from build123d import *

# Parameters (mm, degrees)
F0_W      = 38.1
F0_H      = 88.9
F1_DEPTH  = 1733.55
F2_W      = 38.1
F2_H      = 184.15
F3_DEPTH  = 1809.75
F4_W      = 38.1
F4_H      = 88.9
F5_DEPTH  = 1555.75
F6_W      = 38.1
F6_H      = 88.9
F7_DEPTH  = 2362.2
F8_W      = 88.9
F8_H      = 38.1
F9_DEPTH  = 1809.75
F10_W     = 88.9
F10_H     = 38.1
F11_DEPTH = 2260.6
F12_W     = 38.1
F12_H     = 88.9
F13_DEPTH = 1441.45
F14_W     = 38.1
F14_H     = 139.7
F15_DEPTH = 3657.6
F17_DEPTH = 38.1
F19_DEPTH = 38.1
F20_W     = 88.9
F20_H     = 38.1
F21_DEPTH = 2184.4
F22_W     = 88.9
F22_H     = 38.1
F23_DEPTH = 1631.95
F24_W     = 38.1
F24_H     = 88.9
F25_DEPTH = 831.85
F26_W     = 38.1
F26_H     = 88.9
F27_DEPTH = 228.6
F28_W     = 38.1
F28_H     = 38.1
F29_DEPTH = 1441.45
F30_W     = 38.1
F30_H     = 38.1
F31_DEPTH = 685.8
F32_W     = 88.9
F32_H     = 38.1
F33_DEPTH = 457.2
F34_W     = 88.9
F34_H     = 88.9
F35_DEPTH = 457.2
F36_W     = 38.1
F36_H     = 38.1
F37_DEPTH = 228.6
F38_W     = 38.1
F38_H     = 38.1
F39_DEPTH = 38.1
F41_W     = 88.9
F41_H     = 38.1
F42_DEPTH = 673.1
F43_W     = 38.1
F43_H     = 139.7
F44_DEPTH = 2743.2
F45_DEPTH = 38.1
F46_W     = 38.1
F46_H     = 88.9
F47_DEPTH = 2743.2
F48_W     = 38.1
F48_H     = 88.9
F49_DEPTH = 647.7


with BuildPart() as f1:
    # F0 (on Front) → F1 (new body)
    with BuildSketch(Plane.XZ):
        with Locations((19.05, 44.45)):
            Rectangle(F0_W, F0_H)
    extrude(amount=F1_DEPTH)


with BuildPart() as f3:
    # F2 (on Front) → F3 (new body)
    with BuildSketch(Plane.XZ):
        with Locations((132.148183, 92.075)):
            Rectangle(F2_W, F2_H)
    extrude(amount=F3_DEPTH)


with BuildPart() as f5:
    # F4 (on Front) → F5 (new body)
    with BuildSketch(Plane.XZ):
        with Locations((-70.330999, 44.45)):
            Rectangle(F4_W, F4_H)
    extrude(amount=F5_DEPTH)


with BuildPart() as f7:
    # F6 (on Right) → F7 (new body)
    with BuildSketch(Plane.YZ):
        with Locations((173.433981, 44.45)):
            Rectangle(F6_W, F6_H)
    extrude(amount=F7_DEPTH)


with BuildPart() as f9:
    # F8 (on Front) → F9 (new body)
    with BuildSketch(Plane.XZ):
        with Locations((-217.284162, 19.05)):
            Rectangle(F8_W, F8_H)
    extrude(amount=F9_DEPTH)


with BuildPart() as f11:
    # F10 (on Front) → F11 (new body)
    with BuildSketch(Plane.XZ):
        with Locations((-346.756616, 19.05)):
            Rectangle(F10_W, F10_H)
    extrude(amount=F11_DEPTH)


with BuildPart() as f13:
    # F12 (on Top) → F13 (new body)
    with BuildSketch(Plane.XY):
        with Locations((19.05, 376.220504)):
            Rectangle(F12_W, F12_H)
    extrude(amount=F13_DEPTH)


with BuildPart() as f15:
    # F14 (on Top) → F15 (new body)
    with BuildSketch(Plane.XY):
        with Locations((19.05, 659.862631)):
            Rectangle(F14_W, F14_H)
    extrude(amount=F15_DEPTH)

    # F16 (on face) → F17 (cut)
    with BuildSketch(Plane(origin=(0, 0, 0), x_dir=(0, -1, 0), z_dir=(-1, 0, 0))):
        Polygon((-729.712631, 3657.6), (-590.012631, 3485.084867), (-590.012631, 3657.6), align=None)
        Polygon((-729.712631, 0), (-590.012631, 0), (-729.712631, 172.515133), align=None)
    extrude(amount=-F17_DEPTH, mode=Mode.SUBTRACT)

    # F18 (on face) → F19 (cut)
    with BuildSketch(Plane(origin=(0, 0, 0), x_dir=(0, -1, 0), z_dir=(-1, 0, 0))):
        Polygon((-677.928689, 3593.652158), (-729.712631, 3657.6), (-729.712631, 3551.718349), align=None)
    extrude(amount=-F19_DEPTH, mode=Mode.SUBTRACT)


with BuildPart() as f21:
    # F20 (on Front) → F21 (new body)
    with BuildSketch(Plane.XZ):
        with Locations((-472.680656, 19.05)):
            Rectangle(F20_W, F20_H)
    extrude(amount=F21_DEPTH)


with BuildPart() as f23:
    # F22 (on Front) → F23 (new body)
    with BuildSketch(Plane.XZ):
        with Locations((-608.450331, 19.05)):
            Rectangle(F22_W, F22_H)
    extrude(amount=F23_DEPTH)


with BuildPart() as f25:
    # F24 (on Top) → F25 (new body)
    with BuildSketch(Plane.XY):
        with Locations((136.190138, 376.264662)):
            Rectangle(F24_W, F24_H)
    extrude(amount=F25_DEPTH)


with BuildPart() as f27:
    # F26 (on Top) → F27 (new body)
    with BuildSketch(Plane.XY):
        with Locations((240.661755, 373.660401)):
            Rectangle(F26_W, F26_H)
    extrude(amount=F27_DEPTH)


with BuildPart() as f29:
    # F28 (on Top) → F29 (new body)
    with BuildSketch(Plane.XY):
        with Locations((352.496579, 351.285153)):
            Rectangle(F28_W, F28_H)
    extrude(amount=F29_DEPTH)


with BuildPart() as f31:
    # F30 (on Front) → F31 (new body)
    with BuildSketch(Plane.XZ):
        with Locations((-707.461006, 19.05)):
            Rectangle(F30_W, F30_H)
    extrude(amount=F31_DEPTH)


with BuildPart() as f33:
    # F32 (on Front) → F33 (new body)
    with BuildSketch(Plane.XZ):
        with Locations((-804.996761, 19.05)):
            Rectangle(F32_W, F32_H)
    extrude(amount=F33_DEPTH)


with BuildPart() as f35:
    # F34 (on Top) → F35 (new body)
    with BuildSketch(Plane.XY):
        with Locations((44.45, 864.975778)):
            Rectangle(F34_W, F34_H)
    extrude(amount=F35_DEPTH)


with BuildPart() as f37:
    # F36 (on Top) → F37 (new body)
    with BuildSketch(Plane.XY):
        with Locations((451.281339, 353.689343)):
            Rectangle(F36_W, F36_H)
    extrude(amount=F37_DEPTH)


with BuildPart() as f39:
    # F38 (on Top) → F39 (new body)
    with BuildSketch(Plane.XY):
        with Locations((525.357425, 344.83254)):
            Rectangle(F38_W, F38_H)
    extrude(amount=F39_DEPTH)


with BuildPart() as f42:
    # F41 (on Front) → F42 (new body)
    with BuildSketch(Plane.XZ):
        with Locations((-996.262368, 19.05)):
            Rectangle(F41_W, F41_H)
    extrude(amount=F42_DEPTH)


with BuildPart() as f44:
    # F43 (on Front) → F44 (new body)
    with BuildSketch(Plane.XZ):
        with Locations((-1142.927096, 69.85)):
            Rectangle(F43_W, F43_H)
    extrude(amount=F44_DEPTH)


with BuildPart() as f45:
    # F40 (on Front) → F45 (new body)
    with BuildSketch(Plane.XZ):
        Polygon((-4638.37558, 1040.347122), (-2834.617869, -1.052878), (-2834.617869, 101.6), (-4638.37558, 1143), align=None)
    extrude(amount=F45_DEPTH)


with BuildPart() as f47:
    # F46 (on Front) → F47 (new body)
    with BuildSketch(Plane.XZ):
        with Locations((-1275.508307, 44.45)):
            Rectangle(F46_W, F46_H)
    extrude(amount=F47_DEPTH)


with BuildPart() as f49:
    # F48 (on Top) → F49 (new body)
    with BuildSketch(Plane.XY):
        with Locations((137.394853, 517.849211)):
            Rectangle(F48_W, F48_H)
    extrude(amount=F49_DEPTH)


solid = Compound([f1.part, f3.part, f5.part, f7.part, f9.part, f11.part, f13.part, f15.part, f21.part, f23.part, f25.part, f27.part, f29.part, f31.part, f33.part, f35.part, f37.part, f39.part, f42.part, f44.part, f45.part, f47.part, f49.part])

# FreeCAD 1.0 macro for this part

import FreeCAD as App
import Part
import Sketcher
from FreeCAD import Vector
Q = App.Units.Quantity

doc = App.newDocument("Part")
body = doc.addObject("PartDesign::Body", "Body")

sketch1 = body.newObject("Sketcher::SketchObject", "Sketch")
sketch1.AttachmentSupport = (doc.getObject("XZ_Plane"), [""])
sketch1.MapMode = "FlatFace"
sketch1.addGeometry([
    Part.LineSegment(Vector(0, 88.9, 0), Vector(0, 0, 0)),
    Part.LineSegment(Vector(0, 0, 0), Vector(38.1, 0, 0)),
    Part.LineSegment(Vector(38.1, 0, 0), Vector(38.1, 88.9, 0)),
    Part.LineSegment(Vector(38.1, 88.9, 0), Vector(0, 88.9, 0)),
], False)
sketch1.addConstraint([
    Sketcher.Constraint("Coincident", 0, 2, 1, 1),
    Sketcher.Constraint("Coincident", 1, 2, 2, 1),
    Sketcher.Constraint("Coincident", 2, 2, 3, 1),
    Sketcher.Constraint("Coincident", 3, 2, 0, 1),
    Sketcher.Constraint("Vertical", 0),
    Sketcher.Constraint("Horizontal", 1),
    Sketcher.Constraint("Vertical", 2),
    Sketcher.Constraint("Horizontal", 3),
    Sketcher.Constraint("Coincident", 0, 2, -1, 1),
    Sketcher.Constraint("DistanceX", 1, 1, 1, 2, Q("1.5 in")),
    Sketcher.Constraint("DistanceY", 0, 2, 0, 1, Q("3.5 in")),
])
pad1 = body.newObject("PartDesign::Pad", "Pad")
pad1.Profile = sketch1
pad1.Length = Q("68.25 in")
body2 = doc.addObject("PartDesign::Body", "Body001")

sketch2 = body2.newObject("Sketcher::SketchObject", "Sketch001")
sketch2.AttachmentSupport = (doc.getObject("XZ_Plane001"), [""])
sketch2.MapMode = "FlatFace"
sketch2.addGeometry([
    Part.LineSegment(Vector(113.098183, 184.15, 0), Vector(113.098183, 0, 0)),
    Part.LineSegment(Vector(113.098183, 0, 0), Vector(151.198183, 0, 0)),
    Part.LineSegment(Vector(151.198183, 0, 0), Vector(151.198183, 184.15, 0)),
    Part.LineSegment(Vector(151.198183, 184.15, 0), Vector(113.098183, 184.15, 0)),
], False)
sketch2.addConstraint([
    Sketcher.Constraint("Coincident", 0, 2, 1, 1),
    Sketcher.Constraint("Coincident", 1, 2, 2, 1),
    Sketcher.Constraint("Coincident", 2, 2, 3, 1),
    Sketcher.Constraint("Coincident", 3, 2, 0, 1),
    Sketcher.Constraint("Vertical", 0),
    Sketcher.Constraint("Horizontal", 1),
    Sketcher.Constraint("Vertical", 2),
    Sketcher.Constraint("Horizontal", 3),
    Sketcher.Constraint("PointOnObject", 0, 2, -1),
    Sketcher.Constraint("DistanceX", 1, 1, 1, 2, Q("1.5 in")),
    Sketcher.Constraint("DistanceY", 0, 2, 0, 1, Q("7.25 in")),
    Sketcher.Constraint("DistanceX", -1, 1, 0, 2, Q("113.098183 mm")),
])
pad2 = body2.newObject("PartDesign::Pad", "Pad001")
pad2.Profile = sketch2
pad2.Length = Q("71.25 in")
body3 = doc.addObject("PartDesign::Body", "Body002")

sketch3 = body3.newObject("Sketcher::SketchObject", "Sketch002")
sketch3.AttachmentSupport = (doc.getObject("XZ_Plane002"), [""])
sketch3.MapMode = "FlatFace"
sketch3.addGeometry([
    Part.LineSegment(Vector(-89.380999, 88.9, 0), Vector(-89.380999, 0, 0)),
    Part.LineSegment(Vector(-89.380999, 0, 0), Vector(-51.280999, 0, 0)),
    Part.LineSegment(Vector(-51.280999, 0, 0), Vector(-51.280999, 88.9, 0)),
    Part.LineSegment(Vector(-51.280999, 88.9, 0), Vector(-89.380999, 88.9, 0)),
], False)
sketch3.addConstraint([
    Sketcher.Constraint("Coincident", 0, 2, 1, 1),
    Sketcher.Constraint("Coincident", 1, 2, 2, 1),
    Sketcher.Constraint("Coincident", 2, 2, 3, 1),
    Sketcher.Constraint("Coincident", 3, 2, 0, 1),
    Sketcher.Constraint("Vertical", 0),
    Sketcher.Constraint("Horizontal", 1),
    Sketcher.Constraint("Vertical", 2),
    Sketcher.Constraint("Horizontal", 3),
    Sketcher.Constraint("PointOnObject", 0, 2, -1),
    Sketcher.Constraint("DistanceX", 1, 1, 1, 2, Q("1.5 in")),
    Sketcher.Constraint("DistanceY", 0, 2, 0, 1, Q("3.5 in")),
    Sketcher.Constraint("DistanceX", 0, 2, -1, 1, Q("89.380999 mm")),
])
pad3 = body3.newObject("PartDesign::Pad", "Pad002")
pad3.Profile = sketch3
pad3.Length = Q("61.25 in")
body4 = doc.addObject("PartDesign::Body", "Body003")

sketch4 = body4.newObject("Sketcher::SketchObject", "Sketch003")
sketch4.AttachmentSupport = (doc.getObject("YZ_Plane003"), [""])
sketch4.MapMode = "FlatFace"
sketch4.addGeometry([
    Part.LineSegment(Vector(154.383981, 88.9, 0), Vector(154.383981, 0, 0)),
    Part.LineSegment(Vector(154.383981, 0, 0), Vector(192.483981, 0, 0)),
    Part.LineSegment(Vector(192.483981, 0, 0), Vector(192.483981, 88.9, 0)),
    Part.LineSegment(Vector(192.483981, 88.9, 0), Vector(154.383981, 88.9, 0)),
], False)
sketch4.addConstraint([
    Sketcher.Constraint("Coincident", 0, 2, 1, 1),
    Sketcher.Constraint("Coincident", 1, 2, 2, 1),
    Sketcher.Constraint("Coincident", 2, 2, 3, 1),
    Sketcher.Constraint("Coincident", 3, 2, 0, 1),
    Sketcher.Constraint("Vertical", 0),
    Sketcher.Constraint("Horizontal", 1),
    Sketcher.Constraint("Vertical", 2),
    Sketcher.Constraint("Horizontal", 3),
    Sketcher.Constraint("PointOnObject", 0, 2, -1),
    Sketcher.Constraint("DistanceX", 1, 1, 1, 2, Q("1.5 in")),
    Sketcher.Constraint("DistanceY", 0, 2, 0, 1, Q("3.5 in")),
    Sketcher.Constraint("DistanceX", -1, 1, 0, 2, Q("154.383981 mm")),
])
pad4 = body4.newObject("PartDesign::Pad", "Pad003")
pad4.Profile = sketch4
pad4.Length = Q("93 in")
body5 = doc.addObject("PartDesign::Body", "Body004")

sketch5 = body5.newObject("Sketcher::SketchObject", "Sketch004")
sketch5.AttachmentSupport = (doc.getObject("XZ_Plane004"), [""])
sketch5.MapMode = "FlatFace"
sketch5.addGeometry([
    Part.LineSegment(Vector(-261.734162, 38.1, 0), Vector(-261.734162, 0, 0)),
    Part.LineSegment(Vector(-261.734162, 0, 0), Vector(-172.834162, 0, 0)),
    Part.LineSegment(Vector(-172.834162, 0, 0), Vector(-172.834162, 38.1, 0)),
    Part.LineSegment(Vector(-172.834162, 38.1, 0), Vector(-261.734162, 38.1, 0)),
], False)
sketch5.addConstraint([
    Sketcher.Constraint("Coincident", 0, 2, 1, 1),
    Sketcher.Constraint("Coincident", 1, 2, 2, 1),
    Sketcher.Constraint("Coincident", 2, 2, 3, 1),
    Sketcher.Constraint("Coincident", 3, 2, 0, 1),
    Sketcher.Constraint("Vertical", 0),
    Sketcher.Constraint("Horizontal", 1),
    Sketcher.Constraint("Vertical", 2),
    Sketcher.Constraint("Horizontal", 3),
    Sketcher.Constraint("PointOnObject", 0, 2, -1),
    Sketcher.Constraint("DistanceX", 1, 1, 1, 2, Q("3.5 in")),
    Sketcher.Constraint("DistanceY", 0, 2, 0, 1, Q("1.5 in")),
    Sketcher.Constraint("DistanceX", 1, 2, -1, 1, Q("172.834162 mm")),
])
pad5 = body5.newObject("PartDesign::Pad", "Pad004")
pad5.Profile = sketch5
pad5.Length = Q("71.25 in")
body6 = doc.addObject("PartDesign::Body", "Body005")

sketch6 = body6.newObject("Sketcher::SketchObject", "Sketch005")
sketch6.AttachmentSupport = (doc.getObject("XZ_Plane005"), [""])
sketch6.MapMode = "FlatFace"
sketch6.addGeometry([
    Part.LineSegment(Vector(-391.206616, 38.1, 0), Vector(-391.206616, 0, 0)),
    Part.LineSegment(Vector(-391.206616, 0, 0), Vector(-302.306616, 0, 0)),
    Part.LineSegment(Vector(-302.306616, 0, 0), Vector(-302.306616, 38.1, 0)),
    Part.LineSegment(Vector(-302.306616, 38.1, 0), Vector(-391.206616, 38.1, 0)),
], False)
sketch6.addConstraint([
    Sketcher.Constraint("Coincident", 0, 2, 1, 1),
    Sketcher.Constraint("Coincident", 1, 2, 2, 1),
    Sketcher.Constraint("Coincident", 2, 2, 3, 1),
    Sketcher.Constraint("Coincident", 3, 2, 0, 1),
    Sketcher.Constraint("Vertical", 0),
    Sketcher.Constraint("Horizontal", 1),
    Sketcher.Constraint("Vertical", 2),
    Sketcher.Constraint("Horizontal", 3),
    Sketcher.Constraint("PointOnObject", 0, 2, -1),
    Sketcher.Constraint("DistanceX", 1, 1, 1, 2, Q("3.5 in")),
    Sketcher.Constraint("DistanceY", 0, 2, 0, 1, Q("1.5 in")),
    Sketcher.Constraint("DistanceX", 0, 2, -1, 1, Q("391.206616 mm")),
])
pad6 = body6.newObject("PartDesign::Pad", "Pad005")
pad6.Profile = sketch6
pad6.Length = Q("89 in")
body7 = doc.addObject("PartDesign::Body", "Body006")

sketch7 = body7.newObject("Sketcher::SketchObject", "Sketch006")
sketch7.AttachmentSupport = (doc.getObject("XY_Plane006"), [""])
sketch7.MapMode = "FlatFace"
sketch7.addGeometry([
    Part.LineSegment(Vector(0, 420.670504, 0), Vector(0, 331.770504, 0)),
    Part.LineSegment(Vector(0, 331.770504, 0), Vector(38.1, 331.770504, 0)),
    Part.LineSegment(Vector(38.1, 331.770504, 0), Vector(38.1, 420.670504, 0)),
    Part.LineSegment(Vector(38.1, 420.670504, 0), Vector(0, 420.670504, 0)),
], False)
sketch7.addConstraint([
    Sketcher.Constraint("Coincident", 0, 2, 1, 1),
    Sketcher.Constraint("Coincident", 1, 2, 2, 1),
    Sketcher.Constraint("Coincident", 2, 2, 3, 1),
    Sketcher.Constraint("Coincident", 3, 2, 0, 1),
    Sketcher.Constraint("Vertical", 0),
    Sketcher.Constraint("Horizontal", 1),
    Sketcher.Constraint("Vertical", 2),
    Sketcher.Constraint("Horizontal", 3),
    Sketcher.Constraint("PointOnObject", 0, 2, -2),
    Sketcher.Constraint("DistanceX", 1, 1, 1, 2, Q("1.5 in")),
    Sketcher.Constraint("DistanceY", 0, 2, 0, 1, Q("3.5 in")),
    Sketcher.Constraint("DistanceY", -1, 1, 0, 2, Q("331.770504 mm")),
])
pad7 = body7.newObject("PartDesign::Pad", "Pad006")
pad7.Profile = sketch7
pad7.Length = Q("56.75 in")
body8 = doc.addObject("PartDesign::Body", "Body007")

sketch8 = body8.newObject("Sketcher::SketchObject", "Sketch007")
sketch8.AttachmentSupport = (doc.getObject("XY_Plane007"), [""])
sketch8.MapMode = "FlatFace"
sketch8.addGeometry([
    Part.LineSegment(Vector(0, 729.712631, 0), Vector(0, 590.012631, 0)),
    Part.LineSegment(Vector(0, 590.012631, 0), Vector(38.1, 590.012631, 0)),
    Part.LineSegment(Vector(38.1, 590.012631, 0), Vector(38.1, 729.712631, 0)),
    Part.LineSegment(Vector(38.1, 729.712631, 0), Vector(0, 729.712631, 0)),
], False)
sketch8.addConstraint([
    Sketcher.Constraint("Coincident", 0, 2, 1, 1),
    Sketcher.Constraint("Coincident", 1, 2, 2, 1),
    Sketcher.Constraint("Coincident", 2, 2, 3, 1),
    Sketcher.Constraint("Coincident", 3, 2, 0, 1),
    Sketcher.Constraint("Vertical", 0),
    Sketcher.Constraint("Horizontal", 1),
    Sketcher.Constraint("Vertical", 2),
    Sketcher.Constraint("Horizontal", 3),
    Sketcher.Constraint("PointOnObject", 0, 2, -2),
    Sketcher.Constraint("DistanceX", 1, 1, 1, 2, Q("1.5 in")),
    Sketcher.Constraint("DistanceY", 0, 2, 0, 1, Q("5.5 in")),
    Sketcher.Constraint("DistanceY", -1, 1, 0, 2, Q("590.012631 mm")),
])
pad8 = body8.newObject("PartDesign::Pad", "Pad007")
pad8.Profile = sketch8
pad8.Length = Q("144 in")

sketch9 = body8.newObject("Sketcher::SketchObject", "Sketch008")
sketch9.AttachmentSupport = (doc.getObject("YZ_Plane007"), [""])
sketch9.MapMode = "FlatFace"
sketch9.addGeometry([
    Part.LineSegment(Vector(729.712631, 3657.6, 0), Vector(590.012631, 3485.084867, 0)),
    Part.LineSegment(Vector(590.012631, 3485.084867, 0), Vector(590.012631, 3657.6, 0)),
    Part.LineSegment(Vector(590.012631, 3657.6, 0), Vector(729.712631, 3657.6, 0)),
    Part.LineSegment(Vector(729.712631, 0, 0), Vector(590.012631, 0, 0)),
    Part.LineSegment(Vector(590.012631, 0, 0), Vector(729.712631, 172.515133, 0)),
    Part.LineSegment(Vector(729.712631, 172.515133, 0), Vector(729.712631, 0, 0)),
], False)
sketch9.addConstraint([
    Sketcher.Constraint("Coincident", 0, 2, 1, 1),
    Sketcher.Constraint("Coincident", 1, 2, 2, 1),
    Sketcher.Constraint("Coincident", 2, 2, 0, 1),
    Sketcher.Constraint("Coincident", 3, 2, 4, 1),
    Sketcher.Constraint("Coincident", 4, 2, 5, 1),
    Sketcher.Constraint("Coincident", 5, 2, 3, 1),
    Sketcher.Constraint("Vertical", 1),
    Sketcher.Constraint("Horizontal", 2),
    Sketcher.Constraint("Horizontal", 3),
    Sketcher.Constraint("Vertical", 5),
    Sketcher.Constraint("PointOnObject", 3, 2, -1),
    Sketcher.Constraint("Parallel", 0, 4),
    Sketcher.Constraint("Vertical", 1, 2, 3, 2),
    Sketcher.Constraint("Vertical", 2, 2, 4, 2),
    Sketcher.Constraint("DistanceX", 2, 1, 2, 2, Q("5.5 in")),
    Sketcher.Constraint("DistanceY", -1, 1, 1, 2, Q("144 in")),
    Sketcher.Constraint("Angle", 0, Q("-129 deg")),
    Sketcher.Constraint("DistanceX", -1, 1, 0, 2, Q("590.012631 mm")),
])
pocket1 = body8.newObject("PartDesign::Pocket", "Pocket")
pocket1.Profile = sketch9
pocket1.Length = Q("1.5 in")
pocket1.Reversed = True

sketch10 = body8.newObject("Sketcher::SketchObject", "Sketch009")
sketch10.AttachmentSupport = (doc.getObject("YZ_Plane007"), [""])
sketch10.MapMode = "FlatFace"
sketch10.addGeometry([
    Part.LineSegment(Vector(677.928689, 3593.652158, 0), Vector(729.712631, 3657.6, 0)),
    Part.LineSegment(Vector(729.712631, 3657.6, 0), Vector(729.712631, 3551.718349, 0)),
    Part.LineSegment(Vector(729.712631, 3551.718349, 0), Vector(677.928689, 3593.652158, 0)),
], False)
sketch10.addConstraint([
    Sketcher.Constraint("Coincident", 0, 2, 1, 1),
    Sketcher.Constraint("Coincident", 1, 2, 2, 1),
    Sketcher.Constraint("Coincident", 2, 2, 0, 1),
    Sketcher.Constraint("Vertical", 1),
    Sketcher.Constraint("Perpendicular", 0, 2),
    Sketcher.Constraint("DistanceY", -1, 1, 0, 2, Q("144 in")),
    Sketcher.Constraint("Angle", 0, Q("51 deg")),
    Sketcher.Constraint("DistanceY", 1, 2, 1, 1, Q("105.881651 mm")),
    Sketcher.Constraint("DistanceX", -1, 1, 0, 2, Q("729.712631 mm")),
])
pocket2 = body8.newObject("PartDesign::Pocket", "Pocket001")
pocket2.Profile = sketch10
pocket2.Length = Q("1.5 in")
pocket2.Reversed = True
body9 = doc.addObject("PartDesign::Body", "Body008")

sketch11 = body9.newObject("Sketcher::SketchObject", "Sketch010")
sketch11.AttachmentSupport = (doc.getObject("XZ_Plane008"), [""])
sketch11.MapMode = "FlatFace"
sketch11.addGeometry([
    Part.LineSegment(Vector(-517.130656, 38.1, 0), Vector(-517.130656, 0, 0)),
    Part.LineSegment(Vector(-517.130656, 0, 0), Vector(-428.230656, 0, 0)),
    Part.LineSegment(Vector(-428.230656, 0, 0), Vector(-428.230656, 38.1, 0)),
    Part.LineSegment(Vector(-428.230656, 38.1, 0), Vector(-517.130656, 38.1, 0)),
], False)
sketch11.addConstraint([
    Sketcher.Constraint("Coincident", 0, 2, 1, 1),
    Sketcher.Constraint("Coincident", 1, 2, 2, 1),
    Sketcher.Constraint("Coincident", 2, 2, 3, 1),
    Sketcher.Constraint("Coincident", 3, 2, 0, 1),
    Sketcher.Constraint("Vertical", 0),
    Sketcher.Constraint("Horizontal", 1),
    Sketcher.Constraint("Vertical", 2),
    Sketcher.Constraint("Horizontal", 3),
    Sketcher.Constraint("PointOnObject", 0, 2, -1),
    Sketcher.Constraint("DistanceX", 1, 1, 1, 2, Q("3.5 in")),
    Sketcher.Constraint("DistanceY", 0, 2, 0, 1, Q("1.5 in")),
    Sketcher.Constraint("DistanceX", 0, 2, -1, 1, Q("517.130656 mm")),
])
pad9 = body9.newObject("PartDesign::Pad", "Pad008")
pad9.Profile = sketch11
pad9.Length = Q("86 in")
body10 = doc.addObject("PartDesign::Body", "Body009")

sketch12 = body10.newObject("Sketcher::SketchObject", "Sketch011")
sketch12.AttachmentSupport = (doc.getObject("XZ_Plane009"), [""])
sketch12.MapMode = "FlatFace"
sketch12.addGeometry([
    Part.LineSegment(Vector(-652.900331, 38.1, 0), Vector(-652.900331, 0, 0)),
    Part.LineSegment(Vector(-652.900331, 0, 0), Vector(-564.000331, 0, 0)),
    Part.LineSegment(Vector(-564.000331, 0, 0), Vector(-564.000331, 38.1, 0)),
    Part.LineSegment(Vector(-564.000331, 38.1, 0), Vector(-652.900331, 38.1, 0)),
], False)
sketch12.addConstraint([
    Sketcher.Constraint("Coincident", 0, 2, 1, 1),
    Sketcher.Constraint("Coincident", 1, 2, 2, 1),
    Sketcher.Constraint("Coincident", 2, 2, 3, 1),
    Sketcher.Constraint("Coincident", 3, 2, 0, 1),
    Sketcher.Constraint("Vertical", 0),
    Sketcher.Constraint("Horizontal", 1),
    Sketcher.Constraint("Vertical", 2),
    Sketcher.Constraint("Horizontal", 3),
    Sketcher.Constraint("PointOnObject", 0, 2, -1),
    Sketcher.Constraint("DistanceX", 1, 1, 1, 2, Q("3.5 in")),
    Sketcher.Constraint("DistanceY", 0, 2, 0, 1, Q("1.5 in")),
    Sketcher.Constraint("DistanceX", 0, 2, -1, 1, Q("652.900331 mm")),
])
pad10 = body10.newObject("PartDesign::Pad", "Pad009")
pad10.Profile = sketch12
pad10.Length = Q("64.25 in")
body11 = doc.addObject("PartDesign::Body", "Body010")

sketch13 = body11.newObject("Sketcher::SketchObject", "Sketch012")
sketch13.AttachmentSupport = (doc.getObject("XY_Plane010"), [""])
sketch13.MapMode = "FlatFace"
sketch13.addGeometry([
    Part.LineSegment(Vector(117.140138, 420.714662, 0), Vector(117.140138, 331.814662, 0)),
    Part.LineSegment(Vector(117.140138, 331.814662, 0), Vector(155.240138, 331.814662, 0)),
    Part.LineSegment(Vector(155.240138, 331.814662, 0), Vector(155.240138, 420.714662, 0)),
    Part.LineSegment(Vector(155.240138, 420.714662, 0), Vector(117.140138, 420.714662, 0)),
], False)
sketch13.addConstraint([
    Sketcher.Constraint("Coincident", 0, 2, 1, 1),
    Sketcher.Constraint("Coincident", 1, 2, 2, 1),
    Sketcher.Constraint("Coincident", 2, 2, 3, 1),
    Sketcher.Constraint("Coincident", 3, 2, 0, 1),
    Sketcher.Constraint("Vertical", 0),
    Sketcher.Constraint("Horizontal", 1),
    Sketcher.Constraint("Vertical", 2),
    Sketcher.Constraint("Horizontal", 3),
    Sketcher.Constraint("DistanceX", 1, 1, 1, 2, Q("1.5 in")),
    Sketcher.Constraint("DistanceY", 0, 2, 0, 1, Q("3.5 in")),
    Sketcher.Constraint("DistanceY", -1, 1, 0, 2, Q("331.814662 mm")),
    Sketcher.Constraint("DistanceX", -1, 1, 1, 2, Q("155.240138 mm")),
])
pad11 = body11.newObject("PartDesign::Pad", "Pad010")
pad11.Profile = sketch13
pad11.Length = Q("32.75 in")
body12 = doc.addObject("PartDesign::Body", "Body011")

sketch14 = body12.newObject("Sketcher::SketchObject", "Sketch013")
sketch14.AttachmentSupport = (doc.getObject("XY_Plane011"), [""])
sketch14.MapMode = "FlatFace"
sketch14.addGeometry([
    Part.LineSegment(Vector(221.611755, 418.110401, 0), Vector(221.611755, 329.210401, 0)),
    Part.LineSegment(Vector(221.611755, 329.210401, 0), Vector(259.711755, 329.210401, 0)),
    Part.LineSegment(Vector(259.711755, 329.210401, 0), Vector(259.711755, 418.110401, 0)),
    Part.LineSegment(Vector(259.711755, 418.110401, 0), Vector(221.611755, 418.110401, 0)),
], False)
sketch14.addConstraint([
    Sketcher.Constraint("Coincident", 0, 2, 1, 1),
    Sketcher.Constraint("Coincident", 1, 2, 2, 1),
    Sketcher.Constraint("Coincident", 2, 2, 3, 1),
    Sketcher.Constraint("Coincident", 3, 2, 0, 1),
    Sketcher.Constraint("Vertical", 0),
    Sketcher.Constraint("Horizontal", 1),
    Sketcher.Constraint("Vertical", 2),
    Sketcher.Constraint("Horizontal", 3),
    Sketcher.Constraint("DistanceX", 1, 1, 1, 2, Q("1.5 in")),
    Sketcher.Constraint("DistanceY", 0, 2, 0, 1, Q("3.5 in")),
    Sketcher.Constraint("DistanceY", -1, 1, 0, 2, Q("329.210401 mm")),
    Sketcher.Constraint("DistanceX", -1, 1, 0, 2, Q("221.611755 mm")),
])
pad12 = body12.newObject("PartDesign::Pad", "Pad011")
pad12.Profile = sketch14
pad12.Length = Q("9 in")
body13 = doc.addObject("PartDesign::Body", "Body012")

sketch15 = body13.newObject("Sketcher::SketchObject", "Sketch014")
sketch15.AttachmentSupport = (doc.getObject("XY_Plane012"), [""])
sketch15.MapMode = "FlatFace"
sketch15.addGeometry([
    Part.LineSegment(Vector(333.446579, 370.335153, 0), Vector(333.446579, 332.235153, 0)),
    Part.LineSegment(Vector(333.446579, 332.235153, 0), Vector(371.546579, 332.235153, 0)),
    Part.LineSegment(Vector(371.546579, 332.235153, 0), Vector(371.546579, 370.335153, 0)),
    Part.LineSegment(Vector(371.546579, 370.335153, 0), Vector(333.446579, 370.335153, 0)),
], False)
sketch15.addConstraint([
    Sketcher.Constraint("Coincident", 0, 2, 1, 1),
    Sketcher.Constraint("Coincident", 1, 2, 2, 1),
    Sketcher.Constraint("Coincident", 2, 2, 3, 1),
    Sketcher.Constraint("Coincident", 3, 2, 0, 1),
    Sketcher.Constraint("Vertical", 0),
    Sketcher.Constraint("Horizontal", 1),
    Sketcher.Constraint("Vertical", 2),
    Sketcher.Constraint("Horizontal", 3),
    Sketcher.Constraint("Equal", 3, 0),
    Sketcher.Constraint("DistanceX", 1, 1, 1, 2, Q("1.5 in")),
    Sketcher.Constraint("DistanceX", -1, 1, 0, 2, Q("333.446579 mm")),
    Sketcher.Constraint("DistanceY", -1, 1, 0, 2, Q("332.235153 mm")),
])
pad13 = body13.newObject("PartDesign::Pad", "Pad012")
pad13.Profile = sketch15
pad13.Length = Q("56.75 in")
body14 = doc.addObject("PartDesign::Body", "Body013")

sketch16 = body14.newObject("Sketcher::SketchObject", "Sketch015")
sketch16.AttachmentSupport = (doc.getObject("XZ_Plane013"), [""])
sketch16.MapMode = "FlatFace"
sketch16.addGeometry([
    Part.LineSegment(Vector(-726.511006, 38.1, 0), Vector(-726.511006, 0, 0)),
    Part.LineSegment(Vector(-726.511006, 0, 0), Vector(-688.411006, 0, 0)),
    Part.LineSegment(Vector(-688.411006, 0, 0), Vector(-688.411006, 38.1, 0)),
    Part.LineSegment(Vector(-688.411006, 38.1, 0), Vector(-726.511006, 38.1, 0)),
], False)
sketch16.addConstraint([
    Sketcher.Constraint("Coincident", 0, 2, 1, 1),
    Sketcher.Constraint("Coincident", 1, 2, 2, 1),
    Sketcher.Constraint("Coincident", 2, 2, 3, 1),
    Sketcher.Constraint("Coincident", 3, 2, 0, 1),
    Sketcher.Constraint("Vertical", 0),
    Sketcher.Constraint("Horizontal", 1),
    Sketcher.Constraint("Vertical", 2),
    Sketcher.Constraint("Horizontal", 3),
    Sketcher.Constraint("PointOnObject", 0, 2, -1),
    Sketcher.Constraint("Equal", 3, 0),
    Sketcher.Constraint("DistanceX", 1, 1, 1, 2, Q("1.5 in")),
    Sketcher.Constraint("DistanceX", 0, 2, -1, 1, Q("726.511006 mm")),
])
pad14 = body14.newObject("PartDesign::Pad", "Pad013")
pad14.Profile = sketch16
pad14.Length = Q("27 in")
body15 = doc.addObject("PartDesign::Body", "Body014")

sketch17 = body15.newObject("Sketcher::SketchObject", "Sketch016")
sketch17.AttachmentSupport = (doc.getObject("XZ_Plane014"), [""])
sketch17.MapMode = "FlatFace"
sketch17.addGeometry([
    Part.LineSegment(Vector(-849.446761, 38.1, 0), Vector(-849.446761, 0, 0)),
    Part.LineSegment(Vector(-849.446761, 0, 0), Vector(-760.546761, 0, 0)),
    Part.LineSegment(Vector(-760.546761, 0, 0), Vector(-760.546761, 38.1, 0)),
    Part.LineSegment(Vector(-760.546761, 38.1, 0), Vector(-849.446761, 38.1, 0)),
], False)
sketch17.addConstraint([
    Sketcher.Constraint("Coincident", 0, 2, 1, 1),
    Sketcher.Constraint("Coincident", 1, 2, 2, 1),
    Sketcher.Constraint("Coincident", 2, 2, 3, 1),
    Sketcher.Constraint("Coincident", 3, 2, 0, 1),
    Sketcher.Constraint("Vertical", 0),
    Sketcher.Constraint("Horizontal", 1),
    Sketcher.Constraint("Vertical", 2),
    Sketcher.Constraint("Horizontal", 3),
    Sketcher.Constraint("PointOnObject", 0, 2, -1),
    Sketcher.Constraint("DistanceX", 1, 1, 1, 2, Q("3.5 in")),
    Sketcher.Constraint("DistanceY", 0, 2, 0, 1, Q("1.5 in")),
    Sketcher.Constraint("DistanceX", 0, 2, -1, 1, Q("849.446761 mm")),
])
pad15 = body15.newObject("PartDesign::Pad", "Pad014")
pad15.Profile = sketch17
pad15.Length = Q("18 in")
body16 = doc.addObject("PartDesign::Body", "Body015")

sketch18 = body16.newObject("Sketcher::SketchObject", "Sketch017")
sketch18.AttachmentSupport = (doc.getObject("XY_Plane015"), [""])
sketch18.MapMode = "FlatFace"
sketch18.addGeometry([
    Part.LineSegment(Vector(0, 909.425778, 0), Vector(0, 820.525778, 0)),
    Part.LineSegment(Vector(0, 820.525778, 0), Vector(88.9, 820.525778, 0)),
    Part.LineSegment(Vector(88.9, 820.525778, 0), Vector(88.9, 909.425778, 0)),
    Part.LineSegment(Vector(88.9, 909.425778, 0), Vector(0, 909.425778, 0)),
], False)
sketch18.addConstraint([
    Sketcher.Constraint("Coincident", 0, 2, 1, 1),
    Sketcher.Constraint("Coincident", 1, 2, 2, 1),
    Sketcher.Constraint("Coincident", 2, 2, 3, 1),
    Sketcher.Constraint("Coincident", 3, 2, 0, 1),
    Sketcher.Constraint("Vertical", 0),
    Sketcher.Constraint("Horizontal", 1),
    Sketcher.Constraint("Vertical", 2),
    Sketcher.Constraint("Horizontal", 3),
    Sketcher.Constraint("PointOnObject", 0, 2, -2),
    Sketcher.Constraint("Equal", 3, 0),
    Sketcher.Constraint("DistanceX", 1, 1, 1, 2, Q("3.5 in")),
    Sketcher.Constraint("DistanceY", -1, 1, 2, 2, Q("909.425778 mm")),
])
pad16 = body16.newObject("PartDesign::Pad", "Pad015")
pad16.Profile = sketch18
pad16.Length = Q("18 in")
body17 = doc.addObject("PartDesign::Body", "Body016")

sketch19 = body17.newObject("Sketcher::SketchObject", "Sketch018")
sketch19.AttachmentSupport = (doc.getObject("XY_Plane016"), [""])
sketch19.MapMode = "FlatFace"
sketch19.addGeometry([
    Part.LineSegment(Vector(432.231339, 372.739343, 0), Vector(432.231339, 334.639343, 0)),
    Part.LineSegment(Vector(432.231339, 334.639343, 0), Vector(470.331339, 334.639343, 0)),
    Part.LineSegment(Vector(470.331339, 334.639343, 0), Vector(470.331339, 372.739343, 0)),
    Part.LineSegment(Vector(470.331339, 372.739343, 0), Vector(432.231339, 372.739343, 0)),
], False)
sketch19.addConstraint([
    Sketcher.Constraint("Coincident", 0, 2, 1, 1),
    Sketcher.Constraint("Coincident", 1, 2, 2, 1),
    Sketcher.Constraint("Coincident", 2, 2, 3, 1),
    Sketcher.Constraint("Coincident", 3, 2, 0, 1),
    Sketcher.Constraint("Vertical", 0),
    Sketcher.Constraint("Horizontal", 1),
    Sketcher.Constraint("Vertical", 2),
    Sketcher.Constraint("Horizontal", 3),
    Sketcher.Constraint("Equal", 3, 0),
    Sketcher.Constraint("DistanceX", 1, 1, 1, 2, Q("1.5 in")),
    Sketcher.Constraint("DistanceX", -1, 1, 0, 2, Q("432.231339 mm")),
    Sketcher.Constraint("DistanceY", -1, 1, 0, 2, Q("334.639343 mm")),
])
pad17 = body17.newObject("PartDesign::Pad", "Pad016")
pad17.Profile = sketch19
pad17.Length = Q("9 in")
body18 = doc.addObject("PartDesign::Body", "Body017")

sketch20 = body18.newObject("Sketcher::SketchObject", "Sketch019")
sketch20.AttachmentSupport = (doc.getObject("XY_Plane017"), [""])
sketch20.MapMode = "FlatFace"
sketch20.addGeometry([
    Part.LineSegment(Vector(506.307425, 363.88254, 0), Vector(506.307425, 325.78254, 0)),
    Part.LineSegment(Vector(506.307425, 325.78254, 0), Vector(544.407425, 325.78254, 0)),
    Part.LineSegment(Vector(544.407425, 325.78254, 0), Vector(544.407425, 363.88254, 0)),
    Part.LineSegment(Vector(544.407425, 363.88254, 0), Vector(506.307425, 363.88254, 0)),
], False)
sketch20.addConstraint([
    Sketcher.Constraint("Coincident", 0, 2, 1, 1),
    Sketcher.Constraint("Coincident", 1, 2, 2, 1),
    Sketcher.Constraint("Coincident", 2, 2, 3, 1),
    Sketcher.Constraint("Coincident", 3, 2, 0, 1),
    Sketcher.Constraint("Vertical", 0),
    Sketcher.Constraint("Horizontal", 1),
    Sketcher.Constraint("Vertical", 2),
    Sketcher.Constraint("Horizontal", 3),
    Sketcher.Constraint("Equal", 3, 0),
    Sketcher.Constraint("DistanceX", 1, 1, 1, 2, Q("1.5 in")),
    Sketcher.Constraint("DistanceY", -1, 1, 0, 2, Q("325.78254 mm")),
    Sketcher.Constraint("DistanceX", -1, 1, 0, 2, Q("506.307425 mm")),
])
pad18 = body18.newObject("PartDesign::Pad", "Pad017")
pad18.Profile = sketch20
pad18.Length = Q("1.5 in")
body19 = doc.addObject("PartDesign::Body", "Body018")

sketch21 = body19.newObject("Sketcher::SketchObject", "Sketch020")
sketch21.AttachmentSupport = (doc.getObject("XZ_Plane018"), [""])
sketch21.MapMode = "FlatFace"
sketch21.addGeometry([
    Part.LineSegment(Vector(-1040.712368, 38.1, 0), Vector(-1040.712368, 0, 0)),
    Part.LineSegment(Vector(-1040.712368, 0, 0), Vector(-951.812368, 0, 0)),
    Part.LineSegment(Vector(-951.812368, 0, 0), Vector(-951.812368, 38.1, 0)),
    Part.LineSegment(Vector(-951.812368, 38.1, 0), Vector(-1040.712368, 38.1, 0)),
], False)
sketch21.addConstraint([
    Sketcher.Constraint("Coincident", 0, 2, 1, 1),
    Sketcher.Constraint("Coincident", 1, 2, 2, 1),
    Sketcher.Constraint("Coincident", 2, 2, 3, 1),
    Sketcher.Constraint("Coincident", 3, 2, 0, 1),
    Sketcher.Constraint("Vertical", 0),
    Sketcher.Constraint("Horizontal", 1),
    Sketcher.Constraint("Vertical", 2),
    Sketcher.Constraint("Horizontal", 3),
    Sketcher.Constraint("PointOnObject", 0, 2, -1),
    Sketcher.Constraint("DistanceX", 1, 1, 1, 2, Q("3.5 in")),
    Sketcher.Constraint("DistanceY", 0, 2, 0, 1, Q("1.5 in")),
    Sketcher.Constraint("DistanceX", 0, 2, -1, 1, Q("1040.712368 mm")),
])
pad19 = body19.newObject("PartDesign::Pad", "Pad018")
pad19.Profile = sketch21
pad19.Length = Q("26.5 in")
body20 = doc.addObject("PartDesign::Body", "Body019")

sketch22 = body20.newObject("Sketcher::SketchObject", "Sketch021")
sketch22.AttachmentSupport = (doc.getObject("XZ_Plane019"), [""])
sketch22.MapMode = "FlatFace"
sketch22.addGeometry([
    Part.LineSegment(Vector(-1161.977096, 139.7, 0), Vector(-1161.977096, 0, 0)),
    Part.LineSegment(Vector(-1161.977096, 0, 0), Vector(-1123.877096, 0, 0)),
    Part.LineSegment(Vector(-1123.877096, 0, 0), Vector(-1123.877096, 139.7, 0)),
    Part.LineSegment(Vector(-1123.877096, 139.7, 0), Vector(-1161.977096, 139.7, 0)),
], False)
sketch22.addConstraint([
    Sketcher.Constraint("Coincident", 0, 2, 1, 1),
    Sketcher.Constraint("Coincident", 1, 2, 2, 1),
    Sketcher.Constraint("Coincident", 2, 2, 3, 1),
    Sketcher.Constraint("Coincident", 3, 2, 0, 1),
    Sketcher.Constraint("Vertical", 0),
    Sketcher.Constraint("Horizontal", 1),
    Sketcher.Constraint("Vertical", 2),
    Sketcher.Constraint("Horizontal", 3),
    Sketcher.Constraint("PointOnObject", 0, 2, -1),
    Sketcher.Constraint("DistanceX", 1, 1, 1, 2, Q("1.5 in")),
    Sketcher.Constraint("DistanceY", 0, 2, 0, 1, Q("5.5 in")),
    Sketcher.Constraint("DistanceX", 0, 2, -1, 1, Q("1161.977096 mm")),
])
pad20 = body20.newObject("PartDesign::Pad", "Pad019")
pad20.Profile = sketch22
pad20.Length = Q("108 in")
body21 = doc.addObject("PartDesign::Body", "Body020")

sketch23 = body21.newObject("Sketcher::SketchObject", "Sketch022")
sketch23.AttachmentSupport = (doc.getObject("XZ_Plane020"), [""])
sketch23.MapMode = "FlatFace"
sketch23.addGeometry([
    Part.LineSegment(Vector(-4638.37558, 1040.347122, 0), Vector(-2834.617869, -1.052878, 0)),
    Part.LineSegment(Vector(-2834.617869, -1.052878, 0), Vector(-2834.617869, 101.6, 0)),
    Part.LineSegment(Vector(-2834.617869, 101.6, 0), Vector(-4638.37558, 1143, 0)),
    Part.LineSegment(Vector(-4638.37558, 1143, 0), Vector(-4638.37558, 1040.347122, 0)),
], False)
sketch23.addConstraint([
    Sketcher.Constraint("Coincident", 0, 2, 1, 1),
    Sketcher.Constraint("Coincident", 1, 2, 2, 1),
    Sketcher.Constraint("Coincident", 2, 2, 3, 1),
    Sketcher.Constraint("Coincident", 3, 2, 0, 1),
    Sketcher.Constraint("Vertical", 1),
    Sketcher.Constraint("Vertical", 3),
    Sketcher.Constraint("Parallel", 0, 2),
    Sketcher.Constraint("Distance", 0, Q("82 in")),
    Sketcher.Constraint("DistanceY", -1, 1, 1, 2, Q("4 in")),
    Sketcher.Constraint("DistanceY", -1, 1, 2, 2, Q("45 in")),
    Sketcher.Constraint("DistanceY", 1, 1, 1, 2, Q("102.652878 mm")),
    Sketcher.Constraint("DistanceX", 0, 2, -1, 1, Q("2834.617869 mm")),
])
pad21 = body21.newObject("PartDesign::Pad", "Pad020")
pad21.Profile = sketch23
pad21.Length = Q("1.5 in")
body22 = doc.addObject("PartDesign::Body", "Body021")

sketch24 = body22.newObject("Sketcher::SketchObject", "Sketch023")
sketch24.AttachmentSupport = (doc.getObject("XZ_Plane021"), [""])
sketch24.MapMode = "FlatFace"
sketch24.addGeometry([
    Part.LineSegment(Vector(-1294.558307, 88.9, 0), Vector(-1294.558307, 0, 0)),
    Part.LineSegment(Vector(-1294.558307, 0, 0), Vector(-1256.458307, 0, 0)),
    Part.LineSegment(Vector(-1256.458307, 0, 0), Vector(-1256.458307, 88.9, 0)),
    Part.LineSegment(Vector(-1256.458307, 88.9, 0), Vector(-1294.558307, 88.9, 0)),
], False)
sketch24.addConstraint([
    Sketcher.Constraint("Coincident", 0, 2, 1, 1),
    Sketcher.Constraint("Coincident", 1, 2, 2, 1),
    Sketcher.Constraint("Coincident", 2, 2, 3, 1),
    Sketcher.Constraint("Coincident", 3, 2, 0, 1),
    Sketcher.Constraint("Vertical", 0),
    Sketcher.Constraint("Horizontal", 1),
    Sketcher.Constraint("Vertical", 2),
    Sketcher.Constraint("Horizontal", 3),
    Sketcher.Constraint("PointOnObject", 0, 2, -1),
    Sketcher.Constraint("DistanceX", 1, 1, 1, 2, Q("1.5 in")),
    Sketcher.Constraint("DistanceY", 0, 2, 0, 1, Q("3.5 in")),
    Sketcher.Constraint("DistanceX", 0, 2, -1, 1, Q("1294.558307 mm")),
])
pad22 = body22.newObject("PartDesign::Pad", "Pad021")
pad22.Profile = sketch24
pad22.Length = Q("108 in")
body23 = doc.addObject("PartDesign::Body", "Body022")

sketch25 = body23.newObject("Sketcher::SketchObject", "Sketch024")
sketch25.AttachmentSupport = (doc.getObject("XY_Plane022"), [""])
sketch25.MapMode = "FlatFace"
sketch25.addGeometry([
    Part.LineSegment(Vector(118.344853, 562.299211, 0), Vector(118.344853, 473.399211, 0)),
    Part.LineSegment(Vector(118.344853, 473.399211, 0), Vector(156.444853, 473.399211, 0)),
    Part.LineSegment(Vector(156.444853, 473.399211, 0), Vector(156.444853, 562.299211, 0)),
    Part.LineSegment(Vector(156.444853, 562.299211, 0), Vector(118.344853, 562.299211, 0)),
], False)
sketch25.addConstraint([
    Sketcher.Constraint("Coincident", 0, 2, 1, 1),
    Sketcher.Constraint("Coincident", 1, 2, 2, 1),
    Sketcher.Constraint("Coincident", 2, 2, 3, 1),
    Sketcher.Constraint("Coincident", 3, 2, 0, 1),
    Sketcher.Constraint("Vertical", 0),
    Sketcher.Constraint("Horizontal", 1),
    Sketcher.Constraint("Vertical", 2),
    Sketcher.Constraint("Horizontal", 3),
    Sketcher.Constraint("DistanceX", 1, 1, 1, 2, Q("1.5 in")),
    Sketcher.Constraint("DistanceY", 0, 2, 0, 1, Q("3.5 in")),
    Sketcher.Constraint("DistanceY", -1, 1, 0, 2, Q("473.399211 mm")),
    Sketcher.Constraint("DistanceX", -1, 1, 0, 2, Q("118.344853 mm")),
])
pad23 = body23.newObject("PartDesign::Pad", "Pad022")
pad23.Profile = sketch25
pad23.Length = Q("25.5 in")

doc.recompute()
